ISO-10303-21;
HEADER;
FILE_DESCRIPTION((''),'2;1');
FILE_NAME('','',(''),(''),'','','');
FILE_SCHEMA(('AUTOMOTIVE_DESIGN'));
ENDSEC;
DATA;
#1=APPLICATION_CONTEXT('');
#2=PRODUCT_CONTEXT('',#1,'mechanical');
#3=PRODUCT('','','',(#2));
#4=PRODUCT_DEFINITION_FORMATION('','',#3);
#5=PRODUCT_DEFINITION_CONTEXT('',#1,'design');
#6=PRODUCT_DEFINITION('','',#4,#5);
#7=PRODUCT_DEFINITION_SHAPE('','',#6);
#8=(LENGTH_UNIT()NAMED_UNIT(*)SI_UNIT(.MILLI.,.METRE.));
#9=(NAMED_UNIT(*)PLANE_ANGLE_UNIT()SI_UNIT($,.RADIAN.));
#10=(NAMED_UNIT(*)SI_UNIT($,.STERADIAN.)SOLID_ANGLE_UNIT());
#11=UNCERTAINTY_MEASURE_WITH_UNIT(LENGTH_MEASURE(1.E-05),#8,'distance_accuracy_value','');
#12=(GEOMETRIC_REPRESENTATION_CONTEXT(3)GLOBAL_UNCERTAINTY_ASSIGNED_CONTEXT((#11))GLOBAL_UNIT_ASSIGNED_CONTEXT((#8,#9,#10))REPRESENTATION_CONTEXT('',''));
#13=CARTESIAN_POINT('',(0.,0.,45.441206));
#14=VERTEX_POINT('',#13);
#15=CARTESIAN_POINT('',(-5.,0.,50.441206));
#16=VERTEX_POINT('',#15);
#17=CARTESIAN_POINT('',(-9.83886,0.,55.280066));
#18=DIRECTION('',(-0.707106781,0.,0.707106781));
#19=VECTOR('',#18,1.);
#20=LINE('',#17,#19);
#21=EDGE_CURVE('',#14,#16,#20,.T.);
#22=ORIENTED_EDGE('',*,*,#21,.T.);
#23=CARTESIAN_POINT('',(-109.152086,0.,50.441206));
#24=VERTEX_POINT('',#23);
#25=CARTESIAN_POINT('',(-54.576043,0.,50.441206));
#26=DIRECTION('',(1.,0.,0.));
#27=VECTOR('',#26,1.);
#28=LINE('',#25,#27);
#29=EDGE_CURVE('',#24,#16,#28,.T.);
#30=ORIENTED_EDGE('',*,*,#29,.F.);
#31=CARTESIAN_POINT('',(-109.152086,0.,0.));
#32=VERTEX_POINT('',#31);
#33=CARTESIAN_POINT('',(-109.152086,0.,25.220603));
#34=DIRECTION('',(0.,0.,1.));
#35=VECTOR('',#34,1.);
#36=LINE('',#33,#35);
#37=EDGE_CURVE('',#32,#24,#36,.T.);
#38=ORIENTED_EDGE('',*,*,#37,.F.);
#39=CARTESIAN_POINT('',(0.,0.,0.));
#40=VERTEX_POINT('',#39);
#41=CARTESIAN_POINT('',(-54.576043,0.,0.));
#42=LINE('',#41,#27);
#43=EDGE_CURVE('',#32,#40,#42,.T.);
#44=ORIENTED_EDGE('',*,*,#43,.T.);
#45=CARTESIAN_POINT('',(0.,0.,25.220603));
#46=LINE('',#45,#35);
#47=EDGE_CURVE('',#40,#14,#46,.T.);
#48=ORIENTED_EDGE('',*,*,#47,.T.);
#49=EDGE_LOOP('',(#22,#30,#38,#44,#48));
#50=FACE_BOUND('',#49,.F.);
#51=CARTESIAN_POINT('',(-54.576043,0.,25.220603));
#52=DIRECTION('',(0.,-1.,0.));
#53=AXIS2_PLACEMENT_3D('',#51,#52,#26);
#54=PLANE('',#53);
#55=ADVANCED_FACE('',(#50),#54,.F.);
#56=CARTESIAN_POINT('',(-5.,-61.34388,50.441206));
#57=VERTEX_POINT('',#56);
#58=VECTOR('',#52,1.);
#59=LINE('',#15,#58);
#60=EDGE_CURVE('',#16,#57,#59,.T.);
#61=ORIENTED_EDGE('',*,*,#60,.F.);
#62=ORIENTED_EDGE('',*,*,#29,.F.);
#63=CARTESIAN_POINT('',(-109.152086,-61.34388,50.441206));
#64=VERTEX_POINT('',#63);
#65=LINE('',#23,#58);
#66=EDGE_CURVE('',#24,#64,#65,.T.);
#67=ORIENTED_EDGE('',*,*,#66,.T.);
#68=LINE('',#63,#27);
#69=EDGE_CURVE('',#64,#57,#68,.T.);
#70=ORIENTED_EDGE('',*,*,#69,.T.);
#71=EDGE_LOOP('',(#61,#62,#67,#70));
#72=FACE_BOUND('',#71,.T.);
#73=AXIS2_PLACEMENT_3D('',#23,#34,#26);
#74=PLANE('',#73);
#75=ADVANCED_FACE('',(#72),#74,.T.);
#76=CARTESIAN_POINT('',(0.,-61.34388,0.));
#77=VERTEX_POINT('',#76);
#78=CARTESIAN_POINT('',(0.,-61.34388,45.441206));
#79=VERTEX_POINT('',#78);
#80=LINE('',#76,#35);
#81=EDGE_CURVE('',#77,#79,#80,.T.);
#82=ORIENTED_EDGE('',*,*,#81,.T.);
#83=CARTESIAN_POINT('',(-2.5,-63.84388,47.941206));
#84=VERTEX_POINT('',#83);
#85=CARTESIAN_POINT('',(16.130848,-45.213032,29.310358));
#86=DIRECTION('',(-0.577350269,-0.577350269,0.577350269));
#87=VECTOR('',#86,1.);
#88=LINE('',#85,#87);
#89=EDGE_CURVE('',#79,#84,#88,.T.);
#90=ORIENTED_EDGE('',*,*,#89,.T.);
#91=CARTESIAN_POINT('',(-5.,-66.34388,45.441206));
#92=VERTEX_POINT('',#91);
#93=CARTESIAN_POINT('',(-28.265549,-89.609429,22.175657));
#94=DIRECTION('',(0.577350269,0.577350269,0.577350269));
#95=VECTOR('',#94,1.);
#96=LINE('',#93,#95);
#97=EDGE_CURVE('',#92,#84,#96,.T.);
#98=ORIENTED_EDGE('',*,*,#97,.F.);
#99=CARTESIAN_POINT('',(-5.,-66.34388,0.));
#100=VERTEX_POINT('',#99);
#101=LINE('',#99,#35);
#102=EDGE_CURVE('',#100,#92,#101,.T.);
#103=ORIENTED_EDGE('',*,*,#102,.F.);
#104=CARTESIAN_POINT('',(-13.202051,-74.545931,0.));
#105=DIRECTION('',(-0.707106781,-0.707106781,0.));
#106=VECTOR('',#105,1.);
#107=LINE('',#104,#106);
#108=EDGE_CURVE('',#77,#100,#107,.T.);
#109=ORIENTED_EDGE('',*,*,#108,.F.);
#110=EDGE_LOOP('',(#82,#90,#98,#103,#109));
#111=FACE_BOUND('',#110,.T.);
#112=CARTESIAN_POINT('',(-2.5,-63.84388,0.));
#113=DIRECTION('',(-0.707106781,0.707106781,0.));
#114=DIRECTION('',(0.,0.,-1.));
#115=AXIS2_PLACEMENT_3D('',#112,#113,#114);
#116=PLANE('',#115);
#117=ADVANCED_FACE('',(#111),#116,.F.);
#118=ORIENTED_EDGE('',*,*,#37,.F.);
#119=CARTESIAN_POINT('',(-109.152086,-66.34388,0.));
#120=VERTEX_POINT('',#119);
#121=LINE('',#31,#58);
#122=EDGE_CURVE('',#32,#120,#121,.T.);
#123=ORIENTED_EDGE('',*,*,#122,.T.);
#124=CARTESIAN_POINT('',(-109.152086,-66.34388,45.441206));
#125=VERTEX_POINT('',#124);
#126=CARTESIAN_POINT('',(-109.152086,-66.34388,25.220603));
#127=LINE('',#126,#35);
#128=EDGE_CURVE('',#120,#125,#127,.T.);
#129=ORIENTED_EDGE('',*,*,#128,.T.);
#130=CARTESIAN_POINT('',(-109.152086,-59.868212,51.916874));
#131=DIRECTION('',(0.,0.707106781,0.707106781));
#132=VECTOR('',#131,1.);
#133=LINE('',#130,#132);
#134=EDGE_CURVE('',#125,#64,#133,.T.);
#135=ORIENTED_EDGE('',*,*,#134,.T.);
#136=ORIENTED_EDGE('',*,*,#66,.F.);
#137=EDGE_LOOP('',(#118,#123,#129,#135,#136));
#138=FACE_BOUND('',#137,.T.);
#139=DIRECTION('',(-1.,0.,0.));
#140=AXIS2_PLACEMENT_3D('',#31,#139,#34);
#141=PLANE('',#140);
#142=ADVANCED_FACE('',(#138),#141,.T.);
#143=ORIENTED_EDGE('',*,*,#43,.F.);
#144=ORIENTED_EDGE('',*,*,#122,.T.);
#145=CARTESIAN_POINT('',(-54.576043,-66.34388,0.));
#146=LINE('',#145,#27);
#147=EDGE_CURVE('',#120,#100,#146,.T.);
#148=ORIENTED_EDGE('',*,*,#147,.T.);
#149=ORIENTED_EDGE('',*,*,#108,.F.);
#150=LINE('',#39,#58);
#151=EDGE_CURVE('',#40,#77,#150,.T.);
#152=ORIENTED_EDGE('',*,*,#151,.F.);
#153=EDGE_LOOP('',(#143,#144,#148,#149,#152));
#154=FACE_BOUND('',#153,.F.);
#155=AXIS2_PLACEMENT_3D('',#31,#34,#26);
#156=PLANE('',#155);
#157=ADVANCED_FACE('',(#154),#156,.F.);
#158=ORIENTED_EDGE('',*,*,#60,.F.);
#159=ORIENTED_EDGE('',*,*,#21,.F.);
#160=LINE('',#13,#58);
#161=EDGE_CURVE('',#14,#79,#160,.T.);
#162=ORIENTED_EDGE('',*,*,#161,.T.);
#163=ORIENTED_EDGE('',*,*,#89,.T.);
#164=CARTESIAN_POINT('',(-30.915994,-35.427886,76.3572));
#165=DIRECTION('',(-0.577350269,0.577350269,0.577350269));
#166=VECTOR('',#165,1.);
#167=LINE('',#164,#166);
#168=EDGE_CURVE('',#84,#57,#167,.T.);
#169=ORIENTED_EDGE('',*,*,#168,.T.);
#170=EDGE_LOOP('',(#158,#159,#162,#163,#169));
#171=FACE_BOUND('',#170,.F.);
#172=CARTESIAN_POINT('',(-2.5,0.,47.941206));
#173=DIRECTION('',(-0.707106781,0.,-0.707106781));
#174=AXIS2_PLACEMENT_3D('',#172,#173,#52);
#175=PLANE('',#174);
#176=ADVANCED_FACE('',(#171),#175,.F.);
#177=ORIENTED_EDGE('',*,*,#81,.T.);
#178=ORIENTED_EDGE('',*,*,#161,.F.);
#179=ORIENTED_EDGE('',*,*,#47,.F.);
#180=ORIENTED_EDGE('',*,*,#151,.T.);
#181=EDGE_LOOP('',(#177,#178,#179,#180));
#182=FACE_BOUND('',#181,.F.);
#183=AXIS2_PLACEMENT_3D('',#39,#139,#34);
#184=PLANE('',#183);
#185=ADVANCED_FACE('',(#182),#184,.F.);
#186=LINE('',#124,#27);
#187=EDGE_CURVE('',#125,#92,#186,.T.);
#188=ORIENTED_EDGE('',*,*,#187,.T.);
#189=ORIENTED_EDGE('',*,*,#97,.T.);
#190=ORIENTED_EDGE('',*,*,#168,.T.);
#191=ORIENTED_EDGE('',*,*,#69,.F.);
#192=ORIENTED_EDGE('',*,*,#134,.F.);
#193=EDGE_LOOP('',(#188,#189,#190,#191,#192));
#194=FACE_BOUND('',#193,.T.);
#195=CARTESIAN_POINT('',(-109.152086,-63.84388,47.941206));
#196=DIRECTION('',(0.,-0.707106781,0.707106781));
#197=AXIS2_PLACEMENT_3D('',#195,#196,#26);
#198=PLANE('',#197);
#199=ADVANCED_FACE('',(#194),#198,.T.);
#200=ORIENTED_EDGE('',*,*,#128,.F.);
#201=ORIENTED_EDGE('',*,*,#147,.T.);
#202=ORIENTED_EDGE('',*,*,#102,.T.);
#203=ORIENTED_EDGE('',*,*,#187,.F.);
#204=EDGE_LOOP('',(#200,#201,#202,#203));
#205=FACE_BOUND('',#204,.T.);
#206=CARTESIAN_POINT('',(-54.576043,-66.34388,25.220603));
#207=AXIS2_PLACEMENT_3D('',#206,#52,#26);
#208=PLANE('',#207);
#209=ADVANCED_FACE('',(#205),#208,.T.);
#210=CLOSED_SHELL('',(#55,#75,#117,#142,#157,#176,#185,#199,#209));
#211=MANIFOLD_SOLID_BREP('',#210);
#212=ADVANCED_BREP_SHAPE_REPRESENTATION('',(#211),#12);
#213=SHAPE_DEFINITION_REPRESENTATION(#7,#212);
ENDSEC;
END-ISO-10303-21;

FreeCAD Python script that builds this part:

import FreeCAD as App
import Part
import Sketcher
from FreeCAD import Vector
Q = App.Units.Quantity


def edges_at(feature, points):
    """Names of the edges that pass closest to the given points."""
    edges = feature.Shape.Edges
    near = lambda p: min(range(len(edges)), key=lambda i: edges[i].distToShape(Part.Vertex(*p))[0])
    return sorted({f"Edge{near(p) + 1}" for p in points})

doc = App.newDocument("Part")
body = doc.addObject("PartDesign::Body", "Body")

sketch1 = body.newObject("Sketcher::SketchObject", "Sketch")
sketch1.AttachmentSupport = (doc.getObject("XZ_Plane"), [""])
sketch1.MapMode = "FlatFace"
sketch1.addGeometry(Part.LineSegment(Vector(-109, 50, 0), Vector(-109, 0, 0)), False)
sketch1.addGeometry(Part.LineSegment(Vector(-109, 0, 0), Vector(0, 0, 0)), False)
sketch1.addGeometry(Part.LineSegment(Vector(0, 0, 0), Vector(0, 50, 0)), False)
sketch1.addGeometry(Part.LineSegment(Vector(0, 50, 0), Vector(-109, 50, 0)), False)
sketch1.addConstraint(Sketcher.Constraint("Coincident", 0, 2, 1, 1))
sketch1.addConstraint(Sketcher.Constraint("Coincident", 1, 2, 2, 1))
sketch1.addConstraint(Sketcher.Constraint("Coincident", 2, 2, 3, 1))
sketch1.addConstraint(Sketcher.Constraint("Coincident", 3, 2, 0, 1))
sketch1.addConstraint(Sketcher.Constraint("Vertical", 0))
sketch1.addConstraint(Sketcher.Constraint("Horizontal", 1))
sketch1.addConstraint(Sketcher.Constraint("Vertical", 2))
sketch1.addConstraint(Sketcher.Constraint("Horizontal", 3))
sketch1.addConstraint(Sketcher.Constraint("Coincident", 1, 2, -1, 1))
sketch1.addConstraint(Sketcher.Constraint("DistanceX", 1, 1, 1, 2, Q("109.152086 mm")))
sketch1.addConstraint(Sketcher.Constraint("DistanceY", 0, 2, 0, 1, Q("50.441206 mm")))
pad1 = body.newObject("PartDesign::Pad", "Pad")
pad1.Profile = sketch1
pad1.Length = 66.34388
doc.recompute()

chamfer = body.newObject("PartDesign::Chamfer", "Chamfer")
chamfer.Base = (pad1, edges_at(pad1, [(0, -33.172, 50.441), (0, -66.344, 25.221)]))
chamfer.Size = 5
doc.recompute()

chamfer2 = body.newObject("PartDesign::Chamfer", "Chamfer001")
chamfer2.Base = (chamfer, edges_at(chamfer, [(-57.076, -66.344, 50.441)]))
chamfer2.Size = 5

doc.recompute()
